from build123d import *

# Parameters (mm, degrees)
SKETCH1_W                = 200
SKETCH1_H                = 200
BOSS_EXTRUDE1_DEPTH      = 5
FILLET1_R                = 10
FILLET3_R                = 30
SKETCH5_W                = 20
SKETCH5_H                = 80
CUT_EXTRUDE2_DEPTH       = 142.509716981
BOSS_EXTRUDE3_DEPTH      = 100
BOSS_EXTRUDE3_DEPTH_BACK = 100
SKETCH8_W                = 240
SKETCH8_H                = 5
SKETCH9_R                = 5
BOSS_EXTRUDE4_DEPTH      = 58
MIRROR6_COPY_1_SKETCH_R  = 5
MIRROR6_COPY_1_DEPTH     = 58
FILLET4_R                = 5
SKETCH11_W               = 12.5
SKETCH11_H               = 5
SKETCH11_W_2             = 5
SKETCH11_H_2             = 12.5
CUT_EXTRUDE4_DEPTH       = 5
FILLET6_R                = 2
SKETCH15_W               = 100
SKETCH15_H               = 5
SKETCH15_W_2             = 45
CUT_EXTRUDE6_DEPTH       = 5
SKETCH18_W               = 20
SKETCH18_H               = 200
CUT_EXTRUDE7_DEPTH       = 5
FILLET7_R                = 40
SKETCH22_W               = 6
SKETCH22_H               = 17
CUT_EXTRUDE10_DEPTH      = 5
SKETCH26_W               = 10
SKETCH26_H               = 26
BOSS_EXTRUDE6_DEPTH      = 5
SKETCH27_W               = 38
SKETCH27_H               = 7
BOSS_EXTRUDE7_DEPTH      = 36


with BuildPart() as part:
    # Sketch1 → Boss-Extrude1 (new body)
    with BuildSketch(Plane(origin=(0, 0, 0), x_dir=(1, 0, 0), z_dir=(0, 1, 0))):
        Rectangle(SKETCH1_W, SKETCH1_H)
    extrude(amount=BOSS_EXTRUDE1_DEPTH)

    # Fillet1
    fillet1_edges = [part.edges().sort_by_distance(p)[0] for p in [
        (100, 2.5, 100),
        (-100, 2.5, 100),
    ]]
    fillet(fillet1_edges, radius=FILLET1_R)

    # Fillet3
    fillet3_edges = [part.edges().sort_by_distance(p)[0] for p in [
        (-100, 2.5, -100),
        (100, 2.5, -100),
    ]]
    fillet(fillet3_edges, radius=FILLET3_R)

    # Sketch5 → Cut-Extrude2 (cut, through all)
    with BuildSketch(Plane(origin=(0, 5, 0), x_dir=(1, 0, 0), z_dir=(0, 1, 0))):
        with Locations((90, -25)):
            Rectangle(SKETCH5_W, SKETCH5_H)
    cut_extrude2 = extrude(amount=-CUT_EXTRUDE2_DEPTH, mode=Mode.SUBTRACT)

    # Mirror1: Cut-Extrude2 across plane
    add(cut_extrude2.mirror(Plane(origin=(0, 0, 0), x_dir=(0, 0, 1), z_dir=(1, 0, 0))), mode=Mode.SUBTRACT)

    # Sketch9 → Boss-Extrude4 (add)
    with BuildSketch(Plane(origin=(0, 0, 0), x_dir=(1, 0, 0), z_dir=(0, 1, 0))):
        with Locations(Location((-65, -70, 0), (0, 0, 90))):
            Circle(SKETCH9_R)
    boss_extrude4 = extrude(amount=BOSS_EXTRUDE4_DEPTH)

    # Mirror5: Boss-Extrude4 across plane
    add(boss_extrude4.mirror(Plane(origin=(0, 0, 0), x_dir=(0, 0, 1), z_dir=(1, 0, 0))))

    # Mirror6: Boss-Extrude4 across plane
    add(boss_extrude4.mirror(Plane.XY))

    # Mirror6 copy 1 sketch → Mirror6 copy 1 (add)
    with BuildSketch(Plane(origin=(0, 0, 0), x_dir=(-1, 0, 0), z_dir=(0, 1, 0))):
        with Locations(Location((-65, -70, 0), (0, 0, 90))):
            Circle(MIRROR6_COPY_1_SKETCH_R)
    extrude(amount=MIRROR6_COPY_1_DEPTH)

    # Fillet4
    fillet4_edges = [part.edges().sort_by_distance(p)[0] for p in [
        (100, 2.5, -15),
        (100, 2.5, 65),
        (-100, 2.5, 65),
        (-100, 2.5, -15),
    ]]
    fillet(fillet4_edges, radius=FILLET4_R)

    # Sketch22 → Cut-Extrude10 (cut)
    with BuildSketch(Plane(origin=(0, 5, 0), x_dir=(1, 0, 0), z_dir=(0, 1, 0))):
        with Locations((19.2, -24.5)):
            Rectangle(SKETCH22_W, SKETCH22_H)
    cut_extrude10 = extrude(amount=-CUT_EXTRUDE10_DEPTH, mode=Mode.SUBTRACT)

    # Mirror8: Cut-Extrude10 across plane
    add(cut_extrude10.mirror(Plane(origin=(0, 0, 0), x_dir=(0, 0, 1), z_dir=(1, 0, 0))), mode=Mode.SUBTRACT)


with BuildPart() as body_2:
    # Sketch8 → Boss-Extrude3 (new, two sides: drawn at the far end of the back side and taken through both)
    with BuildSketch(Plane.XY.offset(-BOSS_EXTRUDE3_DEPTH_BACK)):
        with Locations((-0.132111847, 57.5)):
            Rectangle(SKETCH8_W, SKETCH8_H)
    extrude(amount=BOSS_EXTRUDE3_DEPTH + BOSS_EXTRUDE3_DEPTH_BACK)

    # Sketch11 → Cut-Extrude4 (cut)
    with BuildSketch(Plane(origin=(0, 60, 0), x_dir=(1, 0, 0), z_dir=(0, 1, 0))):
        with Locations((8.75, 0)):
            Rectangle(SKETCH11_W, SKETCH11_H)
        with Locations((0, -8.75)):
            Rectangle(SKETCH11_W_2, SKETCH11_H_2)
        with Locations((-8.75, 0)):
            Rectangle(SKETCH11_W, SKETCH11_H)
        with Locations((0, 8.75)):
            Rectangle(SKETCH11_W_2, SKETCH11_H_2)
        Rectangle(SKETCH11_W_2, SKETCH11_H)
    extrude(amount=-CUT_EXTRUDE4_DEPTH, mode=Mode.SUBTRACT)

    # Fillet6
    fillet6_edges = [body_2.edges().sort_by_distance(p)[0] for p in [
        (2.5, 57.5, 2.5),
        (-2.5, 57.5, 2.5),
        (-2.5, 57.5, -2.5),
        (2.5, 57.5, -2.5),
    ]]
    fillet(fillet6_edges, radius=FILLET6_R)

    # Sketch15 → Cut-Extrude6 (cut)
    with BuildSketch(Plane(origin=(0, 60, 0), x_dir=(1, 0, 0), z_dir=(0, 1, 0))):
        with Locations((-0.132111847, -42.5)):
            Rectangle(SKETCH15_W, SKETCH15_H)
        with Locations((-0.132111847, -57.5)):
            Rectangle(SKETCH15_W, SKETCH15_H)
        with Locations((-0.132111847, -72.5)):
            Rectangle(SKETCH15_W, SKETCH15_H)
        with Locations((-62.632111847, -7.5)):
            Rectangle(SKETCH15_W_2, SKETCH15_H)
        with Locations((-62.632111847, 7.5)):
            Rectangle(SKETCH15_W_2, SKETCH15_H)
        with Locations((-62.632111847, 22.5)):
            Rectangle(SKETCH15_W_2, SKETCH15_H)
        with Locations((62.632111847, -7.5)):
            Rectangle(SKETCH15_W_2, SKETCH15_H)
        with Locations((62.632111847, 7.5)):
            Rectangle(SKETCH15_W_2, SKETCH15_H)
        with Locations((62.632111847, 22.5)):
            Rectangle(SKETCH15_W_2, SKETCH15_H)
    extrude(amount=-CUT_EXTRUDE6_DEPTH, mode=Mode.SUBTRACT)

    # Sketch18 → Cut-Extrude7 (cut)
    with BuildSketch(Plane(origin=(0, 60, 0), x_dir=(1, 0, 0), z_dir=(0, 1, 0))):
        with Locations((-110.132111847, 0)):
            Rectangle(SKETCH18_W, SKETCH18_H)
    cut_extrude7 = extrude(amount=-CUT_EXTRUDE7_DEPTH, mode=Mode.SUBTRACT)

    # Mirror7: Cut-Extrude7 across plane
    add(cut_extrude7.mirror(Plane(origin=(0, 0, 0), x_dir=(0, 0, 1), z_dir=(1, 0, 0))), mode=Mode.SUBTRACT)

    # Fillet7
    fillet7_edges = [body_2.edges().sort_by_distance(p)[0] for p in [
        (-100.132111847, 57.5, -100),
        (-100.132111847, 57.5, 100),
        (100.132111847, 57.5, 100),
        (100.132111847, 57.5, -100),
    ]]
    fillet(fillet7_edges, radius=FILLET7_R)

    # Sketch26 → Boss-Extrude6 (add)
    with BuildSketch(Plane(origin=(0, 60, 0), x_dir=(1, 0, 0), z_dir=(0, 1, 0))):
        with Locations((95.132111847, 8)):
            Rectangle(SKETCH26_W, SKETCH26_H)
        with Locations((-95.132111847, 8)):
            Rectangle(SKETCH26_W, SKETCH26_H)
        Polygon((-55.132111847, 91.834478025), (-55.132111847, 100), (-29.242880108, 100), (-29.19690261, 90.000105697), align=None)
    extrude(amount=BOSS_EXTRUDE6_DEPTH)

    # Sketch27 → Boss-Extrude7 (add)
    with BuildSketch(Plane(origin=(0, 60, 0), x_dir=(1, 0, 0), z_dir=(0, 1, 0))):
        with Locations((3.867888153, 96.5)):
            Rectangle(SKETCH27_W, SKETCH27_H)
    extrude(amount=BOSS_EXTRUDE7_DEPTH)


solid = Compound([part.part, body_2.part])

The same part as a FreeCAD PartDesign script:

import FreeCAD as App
import Part
import Sketcher
from FreeCAD import Vector
Q = App.Units.Quantity


def edges_at(feature, points):
    """Names of the edges that pass closest to the given points."""
    edges = feature.Shape.Edges
    near = lambda p: min(range(len(edges)), key=lambda i: edges[i].distToShape(Part.Vertex(*p))[0])
    return sorted({f"Edge{near(p) + 1}" for p in points})


def add_polygon(sketch, points):
    """Adds a closed chain of lines whose ends are joined by coincident constraints."""
    first, n = sketch.GeometryCount, len(points)
    for a, b in zip(points, points[1:] + points[:1]):
        sketch.addGeometry(Part.LineSegment(App.Vector(*a, 0), App.Vector(*b, 0)), False)
    for i in range(n):
        sketch.addConstraint(Sketcher.Constraint("Coincident", first + i, 2, first + (i + 1) % n, 1))

doc = App.newDocument("Part")
body = doc.addObject("PartDesign::Body", "Body")

# Sketch on XZ plane
sketch1 = body.newObject("Sketcher::SketchObject", "Sketch")
sketch1.AttachmentSupport = (doc.getObject("XZ_Plane"), [""])
sketch1.MapMode = "FlatFace"
add_polygon(sketch1, [(-100, -100), (-100, 100), (100, 100), (100, -100)])  # lines 0-3
sketch1.addConstraint([
    Sketcher.Constraint("Vertical", 0),
    Sketcher.Constraint("Horizontal", 1),
    Sketcher.Constraint("Vertical", 2),
    Sketcher.Constraint("Horizontal", 3),
    Sketcher.Constraint("Symmetric", 0, 2, 2, 2, -1, 1),
    Sketcher.Constraint("Equal", 3, 0),
    Sketcher.Constraint("DistanceX", 1, 1, 1, 2, Q("200 mm")),
])
pad1 = body.newObject("PartDesign::Pad", "Pad")
pad1.Profile = sketch1
pad1.Length = 5
pad1.Reversed = True
doc.recompute()

fillet = body.newObject("PartDesign::Fillet", "Fillet")
fillet.Base = (pad1, edges_at(pad1, [(100, 2.5, 100), (-100, 2.5, 100)]))
fillet.Radius = 10
doc.recompute()

fillet2 = body.newObject("PartDesign::Fillet", "Fillet001")
fillet2.Base = (fillet, edges_at(fillet, [(-100, 2.5, -100), (100, 2.5, -100)]))
fillet2.Radius = 30

# Sketch on XZ plane
sketch2 = body.newObject("Sketcher::SketchObject", "Sketch001")
sketch2.AttachmentSupport = (doc.getObject("XZ_Plane"), [""])
sketch2.MapMode = "FlatFace"
sketch2.AttachmentOffset = App.Placement(Vector(0, 0, -5), App.Rotation())
add_polygon(sketch2, [(80, -15), (80, 65), (100, 65), (100, -15)])  # lines 0-3
sketch2.addConstraint([
    Sketcher.Constraint("Vertical", 0),
    Sketcher.Constraint("Horizontal", 1),
    Sketcher.Constraint("Vertical", 2),
    Sketcher.Constraint("Horizontal", 3),
    Sketcher.Constraint("DistanceX", 1, 1, 1, 2, Q("20 mm")),
    Sketcher.Constraint("DistanceY", 0, 1, 0, 2, Q("80 mm")),
    Sketcher.Constraint("DistanceX", -1, 1, 0, 2, Q("80 mm")),
    Sketcher.Constraint("DistanceY", -1, 1, 0, 2, Q("65 mm")),
])
pocket1 = body.newObject("PartDesign::Pocket", "Pocket")
pocket1.Profile = sketch2
pocket1.Type = "ThroughAll"
pocket1.Reversed = True
doc.recompute()

mirrored = body.newObject("PartDesign::Mirrored", "Mirrored")
mirrored.Originals = [pocket1]
mirrored.MirrorPlane = (doc.getObject("YZ_Plane"), [""])
body.Tip = mirrored

# Sketch on XZ plane
sketch3 = body.newObject("Sketcher::SketchObject", "Sketch002")
sketch3.AttachmentSupport = (doc.getObject("XZ_Plane"), [""])
sketch3.MapMode = "FlatFace"
sketch3.addGeometry(Part.Circle(Vector(-65, 70, 0), Vector(0, 0, 1), 5), False)
sketch3.addConstraint([
    Sketcher.Constraint("Diameter", 0, Q("10 mm")),
    Sketcher.Constraint("DistanceX", 0, 3, -1, 1, Q("65 mm")),
    Sketcher.Constraint("DistanceY", -1, 1, 0, 3, Q("70 mm")),
])
pad2 = body.newObject("PartDesign::Pad", "Pad001")
pad2.Profile = sketch3
pad2.Length = 58
pad2.Reversed = True
doc.recompute()

mirrored2 = body.newObject("PartDesign::Mirrored", "Mirrored001")
mirrored2.Originals = [pad2]
mirrored2.MirrorPlane = (doc.getObject("YZ_Plane"), [""])
body.Tip = mirrored2
doc.recompute()

mirrored3 = body.newObject("PartDesign::Mirrored", "Mirrored002")
mirrored3.Originals = [pad2]
mirrored3.MirrorPlane = (doc.getObject("XY_Plane"), [""])
body.Tip = mirrored3

# Sketch on XZ plane
sketch4 = body.newObject("Sketcher::SketchObject", "Sketch003")
sketch4.AttachmentSupport = (doc.getObject("XZ_Plane"), [""])
sketch4.MapMode = "FlatFace"
sketch4.addGeometry(Part.Circle(Vector(65, -70, 0), Vector(0, 0, 1), 5), False)
sketch4.addConstraint([
    Sketcher.Constraint("Diameter", 0, Q("10 mm")),
    Sketcher.Constraint("DistanceX", -1, 1, 0, 3, Q("65 mm")),
    Sketcher.Constraint("DistanceY", 0, 3, -1, 1, Q("70 mm")),
])
pad3 = body.newObject("PartDesign::Pad", "Pad002")
pad3.Profile = sketch4
pad3.Length = 58
pad3.Reversed = True
doc.recompute()

fillet3 = body.newObject("PartDesign::Fillet", "Fillet002")
fillet3.Base = (pad3, edges_at(pad3, [
    (100, 2.5, -15),
    (100, 2.5, 65),
    (-100, 2.5, 65),
    (-100, 2.5, -15),
]))
fillet3.Radius = 5

# Sketch on XZ plane
sketch5 = body.newObject("Sketcher::SketchObject", "Sketch004")
sketch5.AttachmentSupport = (doc.getObject("XZ_Plane"), [""])
sketch5.MapMode = "FlatFace"
sketch5.AttachmentOffset = App.Placement(Vector(0, 0, -5), App.Rotation())
add_polygon(sketch5, [(16, 16), (16, 33), (22, 33), (22, 16)])  # lines 0-3
sketch5.addConstraint([
    Sketcher.Constraint("Vertical", 0),
    Sketcher.Constraint("Horizontal", 1),
    Sketcher.Constraint("Vertical", 2),
    Sketcher.Constraint("Horizontal", 3),
    Sketcher.Constraint("DistanceX", 1, 1, 1, 2, Q("6 mm")),
    Sketcher.Constraint("DistanceY", 0, 1, 0, 2, Q("17 mm")),
    Sketcher.Constraint("DistanceY", -1, 1, 0, 2, Q("33 mm")),
    Sketcher.Constraint("DistanceX", -1, 1, 0, 2, Q("16.2 mm")),
])
pocket2 = body.newObject("PartDesign::Pocket", "Pocket001")
pocket2.Profile = sketch5
pocket2.Length = 5
pocket2.Reversed = True
doc.recompute()

mirrored4 = body.newObject("PartDesign::Mirrored", "Mirrored003")
mirrored4.Originals = [pocket2]
mirrored4.MirrorPlane = (doc.getObject("YZ_Plane"), [""])
body.Tip = mirrored4
body2 = doc.addObject("PartDesign::Body", "Body001")

# Sketch on XY plane
sketch6 = body2.newObject("Sketcher::SketchObject", "Sketch005")
sketch6.AttachmentSupport = (doc.getObject("XY_Plane001"), [""])
sketch6.MapMode = "FlatFace"
add_polygon(sketch6, [(-120, 60), (-120, 55), (120, 55), (120, 60)])  # lines 0-3
sketch6.addConstraint([
    Sketcher.Constraint("Vertical", 0),
    Sketcher.Constraint("Horizontal", 1),
    Sketcher.Constraint("Vertical", 2),
    Sketcher.Constraint("Horizontal", 3),
    Sketcher.Constraint("DistanceX", 1, 1, 1, 2, Q("240 mm")),
    Sketcher.Constraint("DistanceY", 0, 2, 0, 1, Q("5 mm")),
    Sketcher.Constraint("DistanceY", -1, 1, 0, 2, Q("55 mm")),
    Sketcher.Constraint("DistanceX", 0, 2, -1, 1, Q("120.132112 mm")),
])
pad4 = body2.newObject("PartDesign::Pad", "Pad003")
pad4.Profile = sketch6
pad4.Type = "TwoLengths"
pad4.Length = 100
pad4.Length2 = 100

# Sketch on XZ plane
sketch7 = body2.newObject("Sketcher::SketchObject", "Sketch006")
sketch7.AttachmentSupport = (doc.getObject("XZ_Plane001"), [""])
sketch7.MapMode = "FlatFace"
sketch7.AttachmentOffset = App.Placement(Vector(0, 0, -60), App.Rotation())
add_polygon(sketch7, [(2, 2), (15, 2), (15, -2), (2, -2), (2, -15), (-2, -15), (-2, -2), (-15, -2), (-15, 2), (-2, 2), (-2, 15), (2, 15)])  # lines 0-11
sketch7.addConstraint([
    Sketcher.Constraint("Horizontal", 0),
    Sketcher.Constraint("Vertical", 1),
    Sketcher.Constraint("Horizontal", 2),
    Sketcher.Constraint("Vertical", 3),
    Sketcher.Constraint("Horizontal", 4),
    Sketcher.Constraint("Vertical", 5),
    Sketcher.Constraint("Horizontal", 6),
    Sketcher.Constraint("Vertical", 7),
    Sketcher.Constraint("Horizontal", 8),
    Sketcher.Constraint("Vertical", 9),
    Sketcher.Constraint("Horizontal", 10),
    Sketcher.Constraint("Vertical", 11),
    Sketcher.Constraint("Symmetric", 0, 2, 6, 2, -1, 1),
    Sketcher.Constraint("Symmetric", 2, 2, 8, 2, -1, 1),
    Sketcher.Constraint("Symmetric", 4, 2, 10, 2, -1, 1),
    Sketcher.Constraint("Symmetric", 2, 2, 5, 2, -2),
    Sketcher.Constraint("Equal", 10, 1),
    Sketcher.Constraint("Equal", 8, 3),
    Sketcher.Constraint("DistanceX", 4, 2, 4, 1, Q("5 mm")),
    Sketcher.Constraint("DistanceX", 0, 1, 0, 2, Q("12.5 mm")),
])
pocket3 = body2.newObject("PartDesign::Pocket", "Pocket002")
pocket3.Profile = sketch7
pocket3.Length = 5
pocket3.Reversed = True
doc.recompute()

fillet4 = body2.newObject("PartDesign::Fillet", "Fillet003")
fillet4.Base = (pocket3, edges_at(pocket3, [
    (2.5, 57.5, 2.5),
    (-2.5, 57.5, 2.5),
    (-2.5, 57.5, -2.5),
    (2.5, 57.5, -2.5),
]))
fillet4.Radius = 2

# Sketch on XZ plane
sketch8 = body2.newObject("Sketcher::SketchObject", "Sketch007")
sketch8.AttachmentSupport = (doc.getObject("XZ_Plane001"), [""])
sketch8.MapMode = "FlatFace"
sketch8.AttachmentOffset = App.Placement(Vector(0, 0, -60), App.Rotation())
add_polygon(sketch8, [(-50, 40), (-50, 45), (50, 45), (50, 40)])  # lines 0-3
add_polygon(sketch8, [(-50, 55), (-50, 60), (50, 60), (50, 55)])  # lines 4-7
add_polygon(sketch8, [(-50, 70), (-50, 75), (50, 75), (50, 70)])  # lines 8-11
add_polygon(sketch8, [(-85, 5), (-85, 10), (-40, 10), (-40, 5)])  # lines 12-15
add_polygon(sketch8, [(-85, -10), (-85, -5), (-40, -5), (-40, -10)])  # lines 16-19
add_polygon(sketch8, [(-85, -25), (-85, -20), (-40, -20), (-40, -25)])  # lines 20-23
add_polygon(sketch8, [(40, 5), (40, 10), (85, 10), (85, 5)])  # lines 24-27
add_polygon(sketch8, [(40, -10), (40, -5), (85, -5), (85, -10)])  # lines 28-31
add_polygon(sketch8, [(40, -25), (40, -20), (85, -20), (85, -25)])  # lines 32-35
sketch8.addConstraint([
    Sketcher.Constraint("Vertical", 0),
    Sketcher.Constraint("Horizontal", 1),
    Sketcher.Constraint("Vertical", 2),
    Sketcher.Constraint("Horizontal", 3),
    Sketcher.Constraint("Vertical", 4),
    Sketcher.Constraint("Horizontal", 5),
    Sketcher.Constraint("Vertical", 6),
    Sketcher.Constraint("Horizontal", 7),
    Sketcher.Constraint("Vertical", 8),
    Sketcher.Constraint("Horizontal", 9),
    Sketcher.Constraint("Vertical", 10),
    Sketcher.Constraint("Horizontal", 11),
    Sketcher.Constraint("Vertical", 12),
    Sketcher.Constraint("Horizontal", 13),
    Sketcher.Constraint("Vertical", 14),
    Sketcher.Constraint("Horizontal", 15),
    Sketcher.Constraint("Vertical", 16),
    Sketcher.Constraint("Horizontal", 17),
    Sketcher.Constraint("Vertical", 18),
    Sketcher.Constraint("Horizontal", 19),
    Sketcher.Constraint("Vertical", 20),
    Sketcher.Constraint("Horizontal", 21),
    Sketcher.Constraint("Vertical", 22),
    Sketcher.Constraint("Horizontal", 23),
    Sketcher.Constraint("Vertical", 24),
    Sketcher.Constraint("Horizontal", 25),
    Sketcher.Constraint("Vertical", 26),
    Sketcher.Constraint("Horizontal", 27),
    Sketcher.Constraint("Vertical", 28),
    Sketcher.Constraint("Horizontal", 29),
    Sketcher.Constraint("Vertical", 30),
    Sketcher.Constraint("Horizontal", 31),
    Sketcher.Constraint("Vertical", 32),
    Sketcher.Constraint("Horizontal", 33),
    Sketcher.Constraint("Vertical", 34),
    Sketcher.Constraint("Horizontal", 35),
    Sketcher.Constraint("Symmetric", 18, 2, 24, 2, -1, 1),
    Sketcher.Constraint("Symmetric", 16, 2, 26, 2, -1, 1),
    Sketcher.Constraint("Symmetric", 14, 2, 28, 2, -1, 1),
    Sketcher.Constraint("Symmetric", 12, 2, 30, 2, -1, 1),
    Sketcher.Constraint("Symmetric", 13, 2, 24, 2, -2),
    Sketcher.Constraint("Symmetric", 15, 2, 26, 2, -2),
    Sketcher.Constraint("Symmetric", 21, 2, 32, 2, -2),
    Sketcher.Constraint("Symmetric", 23, 2, 34, 2, -2),
    Sketcher.Constraint("Vertical", 3, 2, 4, 2),
    Sketcher.Constraint("Vertical", 2, 2, 5, 2),
    Sketcher.Constraint("Vertical", 7, 2, 8, 2),
    Sketcher.Constraint("Vertical", 6, 2, 9, 2),
    Sketcher.Constraint("Vertical", 19, 2, 20, 2),
    Sketcher.Constraint("Vertical", 18, 2, 21, 2),
    Sketcher.Constraint("Equal", 2, 4),
    Sketcher.Constraint("Equal", 6, 8),
    Sketcher.Constraint("Equal", 10, 12),
    Sketcher.Constraint("Equal", 18, 20),
    Sketcher.Constraint("DistanceX", 1, 1, 1, 2, Q("100 mm")),
    Sketcher.Constraint("DistanceX", 13, 1, 13, 2, Q("45 mm")),
    Sketcher.Constraint("DistanceY", 0, 1, 0, 2, Q("5 mm")),
    Sketcher.Constraint("DistanceY", -1, 1, 0, 2, Q("45 mm")),
    Sketcher.Constraint("DistanceY", -1, 1, 4, 2, Q("60 mm")),
    Sketcher.Constraint("DistanceY", -1, 1, 8, 2, Q("75 mm")),
    Sketcher.Constraint("DistanceY", -1, 1, 12, 2, Q("10 mm")),
    Sketcher.Constraint("DistanceY", 20, 2, -1, 1, Q("20 mm")),
    Sketcher.Constraint("DistanceX", 12, 2, 3, 2, Q("35 mm")),
    Sketcher.Constraint("DistanceX", 0, 2, -1, 1, Q("50.132112 mm")),
])
pocket4 = body2.newObject("PartDesign::Pocket", "Pocket003")
pocket4.Profile = sketch8
pocket4.Length = 5
pocket4.Reversed = True

# Sketch on XZ plane
sketch9 = body2.newObject("Sketcher::SketchObject", "Sketch008")
sketch9.AttachmentSupport = (doc.getObject("XZ_Plane001"), [""])
sketch9.MapMode = "FlatFace"
sketch9.AttachmentOffset = App.Placement(Vector(0, 0, -60), App.Rotation())
add_polygon(sketch9, [(-120, -100), (-120, 100), (-100, 100), (-100, -100)])  # lines 0-3
sketch9.addConstraint([
    Sketcher.Constraint("Vertical", 0),
    Sketcher.Constraint("Horizontal", 1),
    Sketcher.Constraint("Vertical", 2),
    Sketcher.Constraint("Horizontal", 3),
    Sketcher.Constraint("DistanceX", 1, 1, 1, 2, Q("20 mm")),
    Sketcher.Constraint("DistanceY", 0, 1, 0, 2, Q("200 mm")),
    Sketcher.Constraint("DistanceY", -1, 1, 0, 2, Q("100 mm")),
    Sketcher.Constraint("DistanceX", 0, 2, -1, 1, Q("120.132112 mm")),
])
pocket5 = body2.newObject("PartDesign::Pocket", "Pocket004")
pocket5.Profile = sketch9
pocket5.Length = 5
pocket5.Reversed = True
doc.recompute()

mirrored5 = body2.newObject("PartDesign::Mirrored", "Mirrored004")
mirrored5.Originals = [pocket5]
mirrored5.MirrorPlane = (doc.getObject("YZ_Plane001"), [""])
body2.Tip = mirrored5
doc.recompute()

fillet5 = body2.newObject("PartDesign::Fillet", "Fillet004")
fillet5.Base = (mirrored5, edges_at(mirrored5, [
    (-100.132, 57.5, -100),
    (-100.132, 57.5, 100),
    (100.132, 57.5, 100),
    (100.132, 57.5, -100),
]))
fillet5.Radius = 40

# Sketch on XZ plane
sketch10 = body2.newObject("Sketcher::SketchObject", "Sketch009")
sketch10.AttachmentSupport = (doc.getObject("XZ_Plane001"), [""])
sketch10.MapMode = "FlatFace"
sketch10.AttachmentOffset = App.Placement(Vector(0, 0, -60), App.Rotation())
add_polygon(sketch10, [(90, -21), (90, 5), (100, 5), (100, -21)])  # lines 0-3
add_polygon(sketch10, [(-100, -21), (-100, 5), (-90, 5), (-90, -21)])  # lines 4-7
add_polygon(sketch10, [(-55, -100), (-55, -92), (-29, -90), (-29, -100)])  # lines 8-11
sketch10.addConstraint([
    Sketcher.Constraint("Vertical", 0),
    Sketcher.Constraint("Horizontal", 1),
    Sketcher.Constraint("Vertical", 2),
    Sketcher.Constraint("Horizontal", 3),
    Sketcher.Constraint("Vertical", 4),
    Sketcher.Constraint("Horizontal", 5),
    Sketcher.Constraint("Vertical", 6),
    Sketcher.Constraint("Horizontal", 7),
    Sketcher.Constraint("Vertical", 8),
    Sketcher.Constraint("Horizontal", 11),
    Sketcher.Constraint("Symmetric", 1, 2, 4, 2, -2),
    Sketcher.Constraint("Symmetric", 3, 2, 6, 2, -2),
    Sketcher.Constraint("DistanceX", 1, 1, 1, 2, Q("10 mm")),
    Sketcher.Constraint("DistanceY", 0, 1, 0, 2, Q("26 mm")),
    Sketcher.Constraint("Distance", 9, Q("26 mm")),
    Sketcher.Constraint("Distance", 10, Q("10 mm")),
    Sketcher.Constraint("DistanceY", -1, 1, 0, 2, Q("5 mm")),
    Sketcher.Constraint("DistanceY", 10, 2, -1, 1, Q("100 mm")),
    Sketcher.Constraint("DistanceX", 6, 2, 8, 2, Q("35 mm")),
    Sketcher.Constraint("DistanceX", 11, 2, 11, 1, Q("25.889232 mm")),
    Sketcher.Constraint("DistanceY", 8, 1, 8, 2, Q("8.165522 mm")),
    Sketcher.Constraint("DistanceX", -1, 1, 0, 2, Q("90.132112 mm")),
])
pad5 = body2.newObject("PartDesign::Pad", "Pad004")
pad5.Profile = sketch10
pad5.Length = 5
pad5.Reversed = True

# Sketch on XZ plane
sketch11 = body2.newObject("Sketcher::SketchObject", "Sketch010")
sketch11.AttachmentSupport = (doc.getObject("XZ_Plane001"), [""])
sketch11.MapMode = "FlatFace"
sketch11.AttachmentOffset = App.Placement(Vector(0, 0, -60), App.Rotation())
add_polygon(sketch11, [(-15, -100), (-15, -93), (23, -93), (23, -100)])  # lines 0-3
sketch11.addConstraint([
    Sketcher.Constraint("Vertical", 0),
    Sketcher.Constraint("Horizontal", 1),
    Sketcher.Constraint("Vertical", 2),
    Sketcher.Constraint("Horizontal", 3),
    Sketcher.Constraint("DistanceX", 1, 1, 1, 2, Q("38 mm")),
    Sketcher.Constraint("DistanceY", 0, 1, 0, 2, Q("7 mm")),
    Sketcher.Constraint("DistanceY", 0, 2, -1, 1, Q("93 mm")),
    Sketcher.Constraint("DistanceX", 0, 2, -1, 1, Q("15.132112 mm")),
])
pad6 = body2.newObject("PartDesign::Pad", "Pad005")
pad6.Profile = sketch11
pad6.Length = 36
pad6.Reversed = True

doc.recompute()
